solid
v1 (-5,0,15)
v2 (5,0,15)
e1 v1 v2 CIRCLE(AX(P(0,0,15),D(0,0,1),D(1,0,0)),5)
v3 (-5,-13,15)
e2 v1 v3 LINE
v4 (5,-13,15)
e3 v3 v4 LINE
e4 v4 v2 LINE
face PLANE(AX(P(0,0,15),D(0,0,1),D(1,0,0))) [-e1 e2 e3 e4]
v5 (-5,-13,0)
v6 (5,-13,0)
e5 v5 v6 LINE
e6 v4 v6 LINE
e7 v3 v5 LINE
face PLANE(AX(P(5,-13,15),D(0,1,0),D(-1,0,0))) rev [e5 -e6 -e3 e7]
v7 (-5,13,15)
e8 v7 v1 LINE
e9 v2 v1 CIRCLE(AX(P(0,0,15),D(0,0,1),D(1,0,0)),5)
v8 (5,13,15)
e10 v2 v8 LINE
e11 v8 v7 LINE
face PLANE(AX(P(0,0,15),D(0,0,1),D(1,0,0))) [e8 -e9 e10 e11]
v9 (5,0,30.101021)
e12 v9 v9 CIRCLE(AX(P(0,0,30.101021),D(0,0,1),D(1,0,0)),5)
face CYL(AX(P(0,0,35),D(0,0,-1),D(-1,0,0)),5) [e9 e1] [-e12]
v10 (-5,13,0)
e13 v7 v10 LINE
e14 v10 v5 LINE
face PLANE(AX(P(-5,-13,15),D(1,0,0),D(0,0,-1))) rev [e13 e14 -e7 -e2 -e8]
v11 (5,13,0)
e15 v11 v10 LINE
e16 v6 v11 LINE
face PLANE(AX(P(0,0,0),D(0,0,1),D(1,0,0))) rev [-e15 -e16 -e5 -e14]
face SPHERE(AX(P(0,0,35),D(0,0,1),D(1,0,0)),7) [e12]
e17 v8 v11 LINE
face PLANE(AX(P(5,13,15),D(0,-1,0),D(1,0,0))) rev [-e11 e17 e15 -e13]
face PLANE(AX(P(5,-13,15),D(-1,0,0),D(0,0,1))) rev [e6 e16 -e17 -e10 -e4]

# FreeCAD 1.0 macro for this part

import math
import FreeCAD as App
import Part
import Sketcher
from FreeCAD import Vector

doc = App.newDocument("Part")
body = doc.addObject("PartDesign::Body", "Body")

# Sketch on XY plane
sketch1 = body.newObject("Sketcher::SketchObject", "Sketch")
sketch1.AttachmentSupport = (doc.getObject("XY_Plane"), [""])
sketch1.MapMode = "FlatFace"
sketch1.addGeometry(Part.LineSegment(Vector(-5, 13, 0), Vector(-5, -13, 0)), False)
sketch1.addGeometry(Part.LineSegment(Vector(-5, -13, 0), Vector(5, -13, 0)), False)
sketch1.addGeometry(Part.LineSegment(Vector(5, -13, 0), Vector(5, 13, 0)), False)
sketch1.addGeometry(Part.LineSegment(Vector(5, 13, 0), Vector(-5, 13, 0)), False)
sketch1.addConstraint(Sketcher.Constraint("Coincident", 0, 2, 1, 1))
sketch1.addConstraint(Sketcher.Constraint("Coincident", 1, 2, 2, 1))
sketch1.addConstraint(Sketcher.Constraint("Coincident", 2, 2, 3, 1))
sketch1.addConstraint(Sketcher.Constraint("Coincident", 3, 2, 0, 1))
sketch1.addConstraint(Sketcher.Constraint("Vertical", 0))
sketch1.addConstraint(Sketcher.Constraint("Horizontal", 1))
sketch1.addConstraint(Sketcher.Constraint("Vertical", 2))
sketch1.addConstraint(Sketcher.Constraint("Horizontal", 3))
sketch1.addConstraint(Sketcher.Constraint("Symmetric", 0, 2, 2, 2, -1, 1))
sketch1.addConstraint(Sketcher.Constraint("DistanceX", 1, 1, 1, 2, 10.0))
sketch1.addConstraint(Sketcher.Constraint("DistanceY", 0, 2, 0, 1, 26.0))
pad1 = body.newObject("PartDesign::Pad", "Pad")
pad1.Profile = sketch1
pad1.Length = 15

# Sketch on XY plane
sketch2 = body.newObject("Sketcher::SketchObject", "Sketch001")
sketch2.AttachmentSupport = (doc.getObject("XY_Plane"), [""])
sketch2.MapMode = "FlatFace"
sketch2.AttachmentOffset = App.Placement(Vector(0, 0, 15), App.Rotation())
sketch2.addGeometry(Part.Circle(Vector(0, 0, 0), Vector(0, 0, 1), 5), False)
sketch2.addConstraint(Sketcher.Constraint("Coincident", 0, 3, -1, 1))
sketch2.addConstraint(Sketcher.Constraint("Diameter", 0, 10.0))
pad2 = body.newObject("PartDesign::Pad", "Pad001")
pad2.Profile = sketch2
pad2.Length = 20

# Sketch on XY plane
sketch3 = body.newObject("Sketcher::SketchObject", "Sketch002")
sketch3.AttachmentSupport = (doc.getObject("XY_Plane"), [""])
sketch3.MapMode = "FlatFace"
sketch3.AttachmentOffset = App.Placement(Vector(0, 0, 35), App.Rotation())
sketch3.addGeometry(Part.LineSegment(Vector(-7, 0, 0), Vector(7, 0, 0)), False)
sketch3.addGeometry(Part.ArcOfCircle(Part.Circle(Vector(0, 0, 0), Vector(0, 0, 1), 7), math.radians(0), math.radians(180)), False)
sketch3.addConstraint(Sketcher.Constraint("Coincident", 0, 1, 1, 2))
sketch3.addConstraint(Sketcher.Constraint("Coincident", 1, 1, 0, 2))
sketch3.addConstraint(Sketcher.Constraint("Horizontal", 0))
sketch3.addConstraint(Sketcher.Constraint("Coincident", 1, 3, -1, 1))
sketch3.addConstraint(Sketcher.Constraint("PointOnObject", 0, 1, -1))
sketch3.addConstraint(Sketcher.Constraint("Radius", 1, 7.0))
revolution = body.newObject("PartDesign::Revolution", "Revolution")
revolution.Profile = sketch3
revolution.ReferenceAxis = (sketch3, ["H_Axis"])
revolution.Angle = 360

doc.recompute()
